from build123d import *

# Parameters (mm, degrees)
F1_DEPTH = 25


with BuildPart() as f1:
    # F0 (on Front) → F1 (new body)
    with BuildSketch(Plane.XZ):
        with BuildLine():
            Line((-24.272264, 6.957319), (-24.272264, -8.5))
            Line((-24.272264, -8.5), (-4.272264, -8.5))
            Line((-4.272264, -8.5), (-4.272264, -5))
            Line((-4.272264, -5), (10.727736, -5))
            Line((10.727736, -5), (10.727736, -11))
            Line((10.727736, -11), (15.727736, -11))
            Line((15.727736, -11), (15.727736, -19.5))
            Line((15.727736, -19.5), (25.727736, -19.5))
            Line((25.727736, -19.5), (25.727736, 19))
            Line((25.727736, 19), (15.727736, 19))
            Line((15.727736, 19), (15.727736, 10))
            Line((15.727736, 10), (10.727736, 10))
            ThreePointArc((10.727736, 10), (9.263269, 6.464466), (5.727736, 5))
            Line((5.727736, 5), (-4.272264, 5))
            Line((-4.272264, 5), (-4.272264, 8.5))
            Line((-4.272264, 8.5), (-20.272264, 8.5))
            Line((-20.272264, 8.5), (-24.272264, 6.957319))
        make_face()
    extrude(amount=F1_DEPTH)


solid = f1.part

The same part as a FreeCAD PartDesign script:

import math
import FreeCAD as App
import Part
import Sketcher
from FreeCAD import Vector
Q = App.Units.Quantity

doc = App.newDocument("Part")
params = doc.addObject("Spreadsheet::Sheet", "Params")
for row, (alias, value) in enumerate([
    ("sketch1_radius", "5.000001 mm"),
    ("sketch1_width", "20 mm"),
    ("sketch1_width2", "15 mm"),
    ("sketch1_width3", "5 mm"),
    ("sketch1_width4", "16 mm"),
    ("pad1_length", "25 mm"),
], start=1):
    params.set(f"A{row}", alias)
    params.set(f"B{row}", "=" + value)
    params.setAlias(f"B{row}", alias)

body = doc.addObject("PartDesign::Body", "Body")

# Sketch on XZ plane
sketch1 = body.newObject("Sketcher::SketchObject", "Sketch")
sketch1.AttachmentSupport = (doc.getObject("XZ_Plane"), [""])
sketch1.MapMode = "FlatFace"
sketch1.addGeometry(Part.LineSegment(Vector(-24.3, 7, 0), Vector(-24.3, -8.5, 0)), False)
sketch1.addGeometry(Part.LineSegment(Vector(-24.3, -8.5, 0), Vector(-4.3, -8.5, 0)), False)
sketch1.addGeometry(Part.LineSegment(Vector(-4.3, -8.5, 0), Vector(-4.3, -5, 0)), False)
sketch1.addGeometry(Part.LineSegment(Vector(-4.3, -5, 0), Vector(10.7, -5, 0)), False)
sketch1.addGeometry(Part.LineSegment(Vector(10.7, -5, 0), Vector(10.7, -11, 0)), False)
sketch1.addGeometry(Part.LineSegment(Vector(10.7, -11, 0), Vector(15.7, -11, 0)), False)
sketch1.addGeometry(Part.LineSegment(Vector(15.7, -11, 0), Vector(15.7, -19.5, 0)), False)
sketch1.addGeometry(Part.LineSegment(Vector(15.7, -19.5, 0), Vector(25.7, -19.5, 0)), False)
sketch1.addGeometry(Part.LineSegment(Vector(25.7, -19.5, 0), Vector(25.7, 19, 0)), False)
sketch1.addGeometry(Part.LineSegment(Vector(25.7, 19, 0), Vector(15.7, 19, 0)), False)
sketch1.addGeometry(Part.LineSegment(Vector(15.7, 19, 0), Vector(15.7, 10, 0)), False)
sketch1.addGeometry(Part.LineSegment(Vector(15.7, 10, 0), Vector(10.7, 10, 0)), False)
sketch1.addGeometry(Part.ArcOfCircle(Part.Circle(Vector(5.7, 10, 0), Vector(0, 0, 1), 5), math.radians(-90), math.radians(0)), False)
sketch1.addGeometry(Part.LineSegment(Vector(5.7, 5, 0), Vector(-4.3, 5, 0)), False)
sketch1.addGeometry(Part.LineSegment(Vector(-4.3, 5, 0), Vector(-4.3, 8.5, 0)), False)
sketch1.addGeometry(Part.LineSegment(Vector(-4.3, 8.5, 0), Vector(-20.3, 8.5, 0)), False)
sketch1.addGeometry(Part.LineSegment(Vector(-20.3, 8.5, 0), Vector(-24.3, 7, 0)), False)
sketch1.addConstraint(Sketcher.Constraint("Coincident", 0, 2, 1, 1))
sketch1.addConstraint(Sketcher.Constraint("Coincident", 1, 2, 2, 1))
sketch1.addConstraint(Sketcher.Constraint("Coincident", 2, 2, 3, 1))
sketch1.addConstraint(Sketcher.Constraint("Coincident", 3, 2, 4, 1))
sketch1.addConstraint(Sketcher.Constraint("Coincident", 4, 2, 5, 1))
sketch1.addConstraint(Sketcher.Constraint("Coincident", 5, 2, 6, 1))
sketch1.addConstraint(Sketcher.Constraint("Coincident", 6, 2, 7, 1))
sketch1.addConstraint(Sketcher.Constraint("Coincident", 7, 2, 8, 1))
sketch1.addConstraint(Sketcher.Constraint("Coincident", 8, 2, 9, 1))
sketch1.addConstraint(Sketcher.Constraint("Coincident", 9, 2, 10, 1))
sketch1.addConstraint(Sketcher.Constraint("Coincident", 10, 2, 11, 1))
sketch1.addConstraint(Sketcher.Constraint("Coincident", 11, 2, 12, 2))
sketch1.addConstraint(Sketcher.Constraint("Tangent", 12, 1, 13, 1))
sketch1.addConstraint(Sketcher.Constraint("Coincident", 13, 2, 14, 1))
sketch1.addConstraint(Sketcher.Constraint("Coincident", 14, 2, 15, 1))
sketch1.addConstraint(Sketcher.Constraint("Coincident", 15, 2, 16, 1))
sketch1.addConstraint(Sketcher.Constraint("Coincident", 16, 2, 0, 1))
sketch1.addConstraint(Sketcher.Constraint("Vertical", 0))
sketch1.addConstraint(Sketcher.Constraint("Horizontal", 1))
sketch1.addConstraint(Sketcher.Constraint("Vertical", 2))
sketch1.addConstraint(Sketcher.Constraint("Horizontal", 3))
sketch1.addConstraint(Sketcher.Constraint("Vertical", 4))
sketch1.addConstraint(Sketcher.Constraint("Horizontal", 5))
sketch1.addConstraint(Sketcher.Constraint("Vertical", 6))
sketch1.addConstraint(Sketcher.Constraint("Horizontal", 7))
sketch1.addConstraint(Sketcher.Constraint("Vertical", 8))
sketch1.addConstraint(Sketcher.Constraint("Horizontal", 9))
sketch1.addConstraint(Sketcher.Constraint("Vertical", 10))
sketch1.addConstraint(Sketcher.Constraint("Horizontal", 11))
sketch1.addConstraint(Sketcher.Constraint("Horizontal", 13))
sketch1.addConstraint(Sketcher.Constraint("Vertical", 14))
sketch1.addConstraint(Sketcher.Constraint("Horizontal", 15))
sketch1.addConstraint(Sketcher.Constraint("Symmetric", 2, 2, 13, 2, -1))
sketch1.addConstraint(Sketcher.Constraint("Horizontal", 12, 3, 10, 2))
sketch1.addConstraint(Sketcher.Constraint("Vertical", 6, 2, 9, 2))
sketch1.addConstraint(Sketcher.Constraint("Vertical", 4, 2, 11, 2))
sketch1.addConstraint(Sketcher.Constraint("Equal", 9, 13))
sketch1.addConstraint(Sketcher.Constraint("Equal", 2, 14))
sketch1.addConstraint(Sketcher.Constraint("Radius", 12, Q("5.000001 mm")))
sketch1.addConstraint(Sketcher.Constraint("DistanceX", 1, 1, 1, 2, Q("20 mm")))
sketch1.addConstraint(Sketcher.Constraint("DistanceX", 3, 1, 3, 2, Q("15 mm")))
sketch1.addConstraint(Sketcher.Constraint("DistanceX", 5, 1, 5, 2, Q("5 mm")))
sketch1.addConstraint(Sketcher.Constraint("DistanceX", 15, 2, 15, 1, Q("16 mm")))
sketch1.addConstraint(Sketcher.Constraint("DistanceY", 4, 2, 4, 1, Q("6 mm")))
sketch1.addConstraint(Sketcher.Constraint("DistanceY", 10, 2, 10, 1, Q("9 mm")))
sketch1.addConstraint(Sketcher.Constraint("DistanceY", 2, 1, 2, 2, Q("3.5 mm")))
sketch1.addConstraint(Sketcher.Constraint("DistanceY", 6, 2, 6, 1, Q("8.5 mm")))
sketch1.addConstraint(Sketcher.Constraint("DistanceY", 8, 1, 8, 2, Q("38.5 mm")))
sketch1.addConstraint(Sketcher.Constraint("DistanceY", 0, 2, 0, 1, Q("15.457319 mm")))
sketch1.addConstraint(Sketcher.Constraint("DistanceX", -1, 1, 12, 3, Q("5.727735 mm")))
sketch1.setExpression("Constraints[38]", "Params.sketch1_radius")
sketch1.setExpression("Constraints[39]", "Params.sketch1_width")
sketch1.setExpression("Constraints[40]", "Params.sketch1_width2")
sketch1.setExpression("Constraints[41]", "Params.sketch1_width3")
sketch1.setExpression("Constraints[42]", "Params.sketch1_width4")
pad1 = body.newObject("PartDesign::Pad", "Pad")
pad1.Profile = sketch1
pad1.setExpression("Length", "Params.pad1_length")

doc.recompute()
